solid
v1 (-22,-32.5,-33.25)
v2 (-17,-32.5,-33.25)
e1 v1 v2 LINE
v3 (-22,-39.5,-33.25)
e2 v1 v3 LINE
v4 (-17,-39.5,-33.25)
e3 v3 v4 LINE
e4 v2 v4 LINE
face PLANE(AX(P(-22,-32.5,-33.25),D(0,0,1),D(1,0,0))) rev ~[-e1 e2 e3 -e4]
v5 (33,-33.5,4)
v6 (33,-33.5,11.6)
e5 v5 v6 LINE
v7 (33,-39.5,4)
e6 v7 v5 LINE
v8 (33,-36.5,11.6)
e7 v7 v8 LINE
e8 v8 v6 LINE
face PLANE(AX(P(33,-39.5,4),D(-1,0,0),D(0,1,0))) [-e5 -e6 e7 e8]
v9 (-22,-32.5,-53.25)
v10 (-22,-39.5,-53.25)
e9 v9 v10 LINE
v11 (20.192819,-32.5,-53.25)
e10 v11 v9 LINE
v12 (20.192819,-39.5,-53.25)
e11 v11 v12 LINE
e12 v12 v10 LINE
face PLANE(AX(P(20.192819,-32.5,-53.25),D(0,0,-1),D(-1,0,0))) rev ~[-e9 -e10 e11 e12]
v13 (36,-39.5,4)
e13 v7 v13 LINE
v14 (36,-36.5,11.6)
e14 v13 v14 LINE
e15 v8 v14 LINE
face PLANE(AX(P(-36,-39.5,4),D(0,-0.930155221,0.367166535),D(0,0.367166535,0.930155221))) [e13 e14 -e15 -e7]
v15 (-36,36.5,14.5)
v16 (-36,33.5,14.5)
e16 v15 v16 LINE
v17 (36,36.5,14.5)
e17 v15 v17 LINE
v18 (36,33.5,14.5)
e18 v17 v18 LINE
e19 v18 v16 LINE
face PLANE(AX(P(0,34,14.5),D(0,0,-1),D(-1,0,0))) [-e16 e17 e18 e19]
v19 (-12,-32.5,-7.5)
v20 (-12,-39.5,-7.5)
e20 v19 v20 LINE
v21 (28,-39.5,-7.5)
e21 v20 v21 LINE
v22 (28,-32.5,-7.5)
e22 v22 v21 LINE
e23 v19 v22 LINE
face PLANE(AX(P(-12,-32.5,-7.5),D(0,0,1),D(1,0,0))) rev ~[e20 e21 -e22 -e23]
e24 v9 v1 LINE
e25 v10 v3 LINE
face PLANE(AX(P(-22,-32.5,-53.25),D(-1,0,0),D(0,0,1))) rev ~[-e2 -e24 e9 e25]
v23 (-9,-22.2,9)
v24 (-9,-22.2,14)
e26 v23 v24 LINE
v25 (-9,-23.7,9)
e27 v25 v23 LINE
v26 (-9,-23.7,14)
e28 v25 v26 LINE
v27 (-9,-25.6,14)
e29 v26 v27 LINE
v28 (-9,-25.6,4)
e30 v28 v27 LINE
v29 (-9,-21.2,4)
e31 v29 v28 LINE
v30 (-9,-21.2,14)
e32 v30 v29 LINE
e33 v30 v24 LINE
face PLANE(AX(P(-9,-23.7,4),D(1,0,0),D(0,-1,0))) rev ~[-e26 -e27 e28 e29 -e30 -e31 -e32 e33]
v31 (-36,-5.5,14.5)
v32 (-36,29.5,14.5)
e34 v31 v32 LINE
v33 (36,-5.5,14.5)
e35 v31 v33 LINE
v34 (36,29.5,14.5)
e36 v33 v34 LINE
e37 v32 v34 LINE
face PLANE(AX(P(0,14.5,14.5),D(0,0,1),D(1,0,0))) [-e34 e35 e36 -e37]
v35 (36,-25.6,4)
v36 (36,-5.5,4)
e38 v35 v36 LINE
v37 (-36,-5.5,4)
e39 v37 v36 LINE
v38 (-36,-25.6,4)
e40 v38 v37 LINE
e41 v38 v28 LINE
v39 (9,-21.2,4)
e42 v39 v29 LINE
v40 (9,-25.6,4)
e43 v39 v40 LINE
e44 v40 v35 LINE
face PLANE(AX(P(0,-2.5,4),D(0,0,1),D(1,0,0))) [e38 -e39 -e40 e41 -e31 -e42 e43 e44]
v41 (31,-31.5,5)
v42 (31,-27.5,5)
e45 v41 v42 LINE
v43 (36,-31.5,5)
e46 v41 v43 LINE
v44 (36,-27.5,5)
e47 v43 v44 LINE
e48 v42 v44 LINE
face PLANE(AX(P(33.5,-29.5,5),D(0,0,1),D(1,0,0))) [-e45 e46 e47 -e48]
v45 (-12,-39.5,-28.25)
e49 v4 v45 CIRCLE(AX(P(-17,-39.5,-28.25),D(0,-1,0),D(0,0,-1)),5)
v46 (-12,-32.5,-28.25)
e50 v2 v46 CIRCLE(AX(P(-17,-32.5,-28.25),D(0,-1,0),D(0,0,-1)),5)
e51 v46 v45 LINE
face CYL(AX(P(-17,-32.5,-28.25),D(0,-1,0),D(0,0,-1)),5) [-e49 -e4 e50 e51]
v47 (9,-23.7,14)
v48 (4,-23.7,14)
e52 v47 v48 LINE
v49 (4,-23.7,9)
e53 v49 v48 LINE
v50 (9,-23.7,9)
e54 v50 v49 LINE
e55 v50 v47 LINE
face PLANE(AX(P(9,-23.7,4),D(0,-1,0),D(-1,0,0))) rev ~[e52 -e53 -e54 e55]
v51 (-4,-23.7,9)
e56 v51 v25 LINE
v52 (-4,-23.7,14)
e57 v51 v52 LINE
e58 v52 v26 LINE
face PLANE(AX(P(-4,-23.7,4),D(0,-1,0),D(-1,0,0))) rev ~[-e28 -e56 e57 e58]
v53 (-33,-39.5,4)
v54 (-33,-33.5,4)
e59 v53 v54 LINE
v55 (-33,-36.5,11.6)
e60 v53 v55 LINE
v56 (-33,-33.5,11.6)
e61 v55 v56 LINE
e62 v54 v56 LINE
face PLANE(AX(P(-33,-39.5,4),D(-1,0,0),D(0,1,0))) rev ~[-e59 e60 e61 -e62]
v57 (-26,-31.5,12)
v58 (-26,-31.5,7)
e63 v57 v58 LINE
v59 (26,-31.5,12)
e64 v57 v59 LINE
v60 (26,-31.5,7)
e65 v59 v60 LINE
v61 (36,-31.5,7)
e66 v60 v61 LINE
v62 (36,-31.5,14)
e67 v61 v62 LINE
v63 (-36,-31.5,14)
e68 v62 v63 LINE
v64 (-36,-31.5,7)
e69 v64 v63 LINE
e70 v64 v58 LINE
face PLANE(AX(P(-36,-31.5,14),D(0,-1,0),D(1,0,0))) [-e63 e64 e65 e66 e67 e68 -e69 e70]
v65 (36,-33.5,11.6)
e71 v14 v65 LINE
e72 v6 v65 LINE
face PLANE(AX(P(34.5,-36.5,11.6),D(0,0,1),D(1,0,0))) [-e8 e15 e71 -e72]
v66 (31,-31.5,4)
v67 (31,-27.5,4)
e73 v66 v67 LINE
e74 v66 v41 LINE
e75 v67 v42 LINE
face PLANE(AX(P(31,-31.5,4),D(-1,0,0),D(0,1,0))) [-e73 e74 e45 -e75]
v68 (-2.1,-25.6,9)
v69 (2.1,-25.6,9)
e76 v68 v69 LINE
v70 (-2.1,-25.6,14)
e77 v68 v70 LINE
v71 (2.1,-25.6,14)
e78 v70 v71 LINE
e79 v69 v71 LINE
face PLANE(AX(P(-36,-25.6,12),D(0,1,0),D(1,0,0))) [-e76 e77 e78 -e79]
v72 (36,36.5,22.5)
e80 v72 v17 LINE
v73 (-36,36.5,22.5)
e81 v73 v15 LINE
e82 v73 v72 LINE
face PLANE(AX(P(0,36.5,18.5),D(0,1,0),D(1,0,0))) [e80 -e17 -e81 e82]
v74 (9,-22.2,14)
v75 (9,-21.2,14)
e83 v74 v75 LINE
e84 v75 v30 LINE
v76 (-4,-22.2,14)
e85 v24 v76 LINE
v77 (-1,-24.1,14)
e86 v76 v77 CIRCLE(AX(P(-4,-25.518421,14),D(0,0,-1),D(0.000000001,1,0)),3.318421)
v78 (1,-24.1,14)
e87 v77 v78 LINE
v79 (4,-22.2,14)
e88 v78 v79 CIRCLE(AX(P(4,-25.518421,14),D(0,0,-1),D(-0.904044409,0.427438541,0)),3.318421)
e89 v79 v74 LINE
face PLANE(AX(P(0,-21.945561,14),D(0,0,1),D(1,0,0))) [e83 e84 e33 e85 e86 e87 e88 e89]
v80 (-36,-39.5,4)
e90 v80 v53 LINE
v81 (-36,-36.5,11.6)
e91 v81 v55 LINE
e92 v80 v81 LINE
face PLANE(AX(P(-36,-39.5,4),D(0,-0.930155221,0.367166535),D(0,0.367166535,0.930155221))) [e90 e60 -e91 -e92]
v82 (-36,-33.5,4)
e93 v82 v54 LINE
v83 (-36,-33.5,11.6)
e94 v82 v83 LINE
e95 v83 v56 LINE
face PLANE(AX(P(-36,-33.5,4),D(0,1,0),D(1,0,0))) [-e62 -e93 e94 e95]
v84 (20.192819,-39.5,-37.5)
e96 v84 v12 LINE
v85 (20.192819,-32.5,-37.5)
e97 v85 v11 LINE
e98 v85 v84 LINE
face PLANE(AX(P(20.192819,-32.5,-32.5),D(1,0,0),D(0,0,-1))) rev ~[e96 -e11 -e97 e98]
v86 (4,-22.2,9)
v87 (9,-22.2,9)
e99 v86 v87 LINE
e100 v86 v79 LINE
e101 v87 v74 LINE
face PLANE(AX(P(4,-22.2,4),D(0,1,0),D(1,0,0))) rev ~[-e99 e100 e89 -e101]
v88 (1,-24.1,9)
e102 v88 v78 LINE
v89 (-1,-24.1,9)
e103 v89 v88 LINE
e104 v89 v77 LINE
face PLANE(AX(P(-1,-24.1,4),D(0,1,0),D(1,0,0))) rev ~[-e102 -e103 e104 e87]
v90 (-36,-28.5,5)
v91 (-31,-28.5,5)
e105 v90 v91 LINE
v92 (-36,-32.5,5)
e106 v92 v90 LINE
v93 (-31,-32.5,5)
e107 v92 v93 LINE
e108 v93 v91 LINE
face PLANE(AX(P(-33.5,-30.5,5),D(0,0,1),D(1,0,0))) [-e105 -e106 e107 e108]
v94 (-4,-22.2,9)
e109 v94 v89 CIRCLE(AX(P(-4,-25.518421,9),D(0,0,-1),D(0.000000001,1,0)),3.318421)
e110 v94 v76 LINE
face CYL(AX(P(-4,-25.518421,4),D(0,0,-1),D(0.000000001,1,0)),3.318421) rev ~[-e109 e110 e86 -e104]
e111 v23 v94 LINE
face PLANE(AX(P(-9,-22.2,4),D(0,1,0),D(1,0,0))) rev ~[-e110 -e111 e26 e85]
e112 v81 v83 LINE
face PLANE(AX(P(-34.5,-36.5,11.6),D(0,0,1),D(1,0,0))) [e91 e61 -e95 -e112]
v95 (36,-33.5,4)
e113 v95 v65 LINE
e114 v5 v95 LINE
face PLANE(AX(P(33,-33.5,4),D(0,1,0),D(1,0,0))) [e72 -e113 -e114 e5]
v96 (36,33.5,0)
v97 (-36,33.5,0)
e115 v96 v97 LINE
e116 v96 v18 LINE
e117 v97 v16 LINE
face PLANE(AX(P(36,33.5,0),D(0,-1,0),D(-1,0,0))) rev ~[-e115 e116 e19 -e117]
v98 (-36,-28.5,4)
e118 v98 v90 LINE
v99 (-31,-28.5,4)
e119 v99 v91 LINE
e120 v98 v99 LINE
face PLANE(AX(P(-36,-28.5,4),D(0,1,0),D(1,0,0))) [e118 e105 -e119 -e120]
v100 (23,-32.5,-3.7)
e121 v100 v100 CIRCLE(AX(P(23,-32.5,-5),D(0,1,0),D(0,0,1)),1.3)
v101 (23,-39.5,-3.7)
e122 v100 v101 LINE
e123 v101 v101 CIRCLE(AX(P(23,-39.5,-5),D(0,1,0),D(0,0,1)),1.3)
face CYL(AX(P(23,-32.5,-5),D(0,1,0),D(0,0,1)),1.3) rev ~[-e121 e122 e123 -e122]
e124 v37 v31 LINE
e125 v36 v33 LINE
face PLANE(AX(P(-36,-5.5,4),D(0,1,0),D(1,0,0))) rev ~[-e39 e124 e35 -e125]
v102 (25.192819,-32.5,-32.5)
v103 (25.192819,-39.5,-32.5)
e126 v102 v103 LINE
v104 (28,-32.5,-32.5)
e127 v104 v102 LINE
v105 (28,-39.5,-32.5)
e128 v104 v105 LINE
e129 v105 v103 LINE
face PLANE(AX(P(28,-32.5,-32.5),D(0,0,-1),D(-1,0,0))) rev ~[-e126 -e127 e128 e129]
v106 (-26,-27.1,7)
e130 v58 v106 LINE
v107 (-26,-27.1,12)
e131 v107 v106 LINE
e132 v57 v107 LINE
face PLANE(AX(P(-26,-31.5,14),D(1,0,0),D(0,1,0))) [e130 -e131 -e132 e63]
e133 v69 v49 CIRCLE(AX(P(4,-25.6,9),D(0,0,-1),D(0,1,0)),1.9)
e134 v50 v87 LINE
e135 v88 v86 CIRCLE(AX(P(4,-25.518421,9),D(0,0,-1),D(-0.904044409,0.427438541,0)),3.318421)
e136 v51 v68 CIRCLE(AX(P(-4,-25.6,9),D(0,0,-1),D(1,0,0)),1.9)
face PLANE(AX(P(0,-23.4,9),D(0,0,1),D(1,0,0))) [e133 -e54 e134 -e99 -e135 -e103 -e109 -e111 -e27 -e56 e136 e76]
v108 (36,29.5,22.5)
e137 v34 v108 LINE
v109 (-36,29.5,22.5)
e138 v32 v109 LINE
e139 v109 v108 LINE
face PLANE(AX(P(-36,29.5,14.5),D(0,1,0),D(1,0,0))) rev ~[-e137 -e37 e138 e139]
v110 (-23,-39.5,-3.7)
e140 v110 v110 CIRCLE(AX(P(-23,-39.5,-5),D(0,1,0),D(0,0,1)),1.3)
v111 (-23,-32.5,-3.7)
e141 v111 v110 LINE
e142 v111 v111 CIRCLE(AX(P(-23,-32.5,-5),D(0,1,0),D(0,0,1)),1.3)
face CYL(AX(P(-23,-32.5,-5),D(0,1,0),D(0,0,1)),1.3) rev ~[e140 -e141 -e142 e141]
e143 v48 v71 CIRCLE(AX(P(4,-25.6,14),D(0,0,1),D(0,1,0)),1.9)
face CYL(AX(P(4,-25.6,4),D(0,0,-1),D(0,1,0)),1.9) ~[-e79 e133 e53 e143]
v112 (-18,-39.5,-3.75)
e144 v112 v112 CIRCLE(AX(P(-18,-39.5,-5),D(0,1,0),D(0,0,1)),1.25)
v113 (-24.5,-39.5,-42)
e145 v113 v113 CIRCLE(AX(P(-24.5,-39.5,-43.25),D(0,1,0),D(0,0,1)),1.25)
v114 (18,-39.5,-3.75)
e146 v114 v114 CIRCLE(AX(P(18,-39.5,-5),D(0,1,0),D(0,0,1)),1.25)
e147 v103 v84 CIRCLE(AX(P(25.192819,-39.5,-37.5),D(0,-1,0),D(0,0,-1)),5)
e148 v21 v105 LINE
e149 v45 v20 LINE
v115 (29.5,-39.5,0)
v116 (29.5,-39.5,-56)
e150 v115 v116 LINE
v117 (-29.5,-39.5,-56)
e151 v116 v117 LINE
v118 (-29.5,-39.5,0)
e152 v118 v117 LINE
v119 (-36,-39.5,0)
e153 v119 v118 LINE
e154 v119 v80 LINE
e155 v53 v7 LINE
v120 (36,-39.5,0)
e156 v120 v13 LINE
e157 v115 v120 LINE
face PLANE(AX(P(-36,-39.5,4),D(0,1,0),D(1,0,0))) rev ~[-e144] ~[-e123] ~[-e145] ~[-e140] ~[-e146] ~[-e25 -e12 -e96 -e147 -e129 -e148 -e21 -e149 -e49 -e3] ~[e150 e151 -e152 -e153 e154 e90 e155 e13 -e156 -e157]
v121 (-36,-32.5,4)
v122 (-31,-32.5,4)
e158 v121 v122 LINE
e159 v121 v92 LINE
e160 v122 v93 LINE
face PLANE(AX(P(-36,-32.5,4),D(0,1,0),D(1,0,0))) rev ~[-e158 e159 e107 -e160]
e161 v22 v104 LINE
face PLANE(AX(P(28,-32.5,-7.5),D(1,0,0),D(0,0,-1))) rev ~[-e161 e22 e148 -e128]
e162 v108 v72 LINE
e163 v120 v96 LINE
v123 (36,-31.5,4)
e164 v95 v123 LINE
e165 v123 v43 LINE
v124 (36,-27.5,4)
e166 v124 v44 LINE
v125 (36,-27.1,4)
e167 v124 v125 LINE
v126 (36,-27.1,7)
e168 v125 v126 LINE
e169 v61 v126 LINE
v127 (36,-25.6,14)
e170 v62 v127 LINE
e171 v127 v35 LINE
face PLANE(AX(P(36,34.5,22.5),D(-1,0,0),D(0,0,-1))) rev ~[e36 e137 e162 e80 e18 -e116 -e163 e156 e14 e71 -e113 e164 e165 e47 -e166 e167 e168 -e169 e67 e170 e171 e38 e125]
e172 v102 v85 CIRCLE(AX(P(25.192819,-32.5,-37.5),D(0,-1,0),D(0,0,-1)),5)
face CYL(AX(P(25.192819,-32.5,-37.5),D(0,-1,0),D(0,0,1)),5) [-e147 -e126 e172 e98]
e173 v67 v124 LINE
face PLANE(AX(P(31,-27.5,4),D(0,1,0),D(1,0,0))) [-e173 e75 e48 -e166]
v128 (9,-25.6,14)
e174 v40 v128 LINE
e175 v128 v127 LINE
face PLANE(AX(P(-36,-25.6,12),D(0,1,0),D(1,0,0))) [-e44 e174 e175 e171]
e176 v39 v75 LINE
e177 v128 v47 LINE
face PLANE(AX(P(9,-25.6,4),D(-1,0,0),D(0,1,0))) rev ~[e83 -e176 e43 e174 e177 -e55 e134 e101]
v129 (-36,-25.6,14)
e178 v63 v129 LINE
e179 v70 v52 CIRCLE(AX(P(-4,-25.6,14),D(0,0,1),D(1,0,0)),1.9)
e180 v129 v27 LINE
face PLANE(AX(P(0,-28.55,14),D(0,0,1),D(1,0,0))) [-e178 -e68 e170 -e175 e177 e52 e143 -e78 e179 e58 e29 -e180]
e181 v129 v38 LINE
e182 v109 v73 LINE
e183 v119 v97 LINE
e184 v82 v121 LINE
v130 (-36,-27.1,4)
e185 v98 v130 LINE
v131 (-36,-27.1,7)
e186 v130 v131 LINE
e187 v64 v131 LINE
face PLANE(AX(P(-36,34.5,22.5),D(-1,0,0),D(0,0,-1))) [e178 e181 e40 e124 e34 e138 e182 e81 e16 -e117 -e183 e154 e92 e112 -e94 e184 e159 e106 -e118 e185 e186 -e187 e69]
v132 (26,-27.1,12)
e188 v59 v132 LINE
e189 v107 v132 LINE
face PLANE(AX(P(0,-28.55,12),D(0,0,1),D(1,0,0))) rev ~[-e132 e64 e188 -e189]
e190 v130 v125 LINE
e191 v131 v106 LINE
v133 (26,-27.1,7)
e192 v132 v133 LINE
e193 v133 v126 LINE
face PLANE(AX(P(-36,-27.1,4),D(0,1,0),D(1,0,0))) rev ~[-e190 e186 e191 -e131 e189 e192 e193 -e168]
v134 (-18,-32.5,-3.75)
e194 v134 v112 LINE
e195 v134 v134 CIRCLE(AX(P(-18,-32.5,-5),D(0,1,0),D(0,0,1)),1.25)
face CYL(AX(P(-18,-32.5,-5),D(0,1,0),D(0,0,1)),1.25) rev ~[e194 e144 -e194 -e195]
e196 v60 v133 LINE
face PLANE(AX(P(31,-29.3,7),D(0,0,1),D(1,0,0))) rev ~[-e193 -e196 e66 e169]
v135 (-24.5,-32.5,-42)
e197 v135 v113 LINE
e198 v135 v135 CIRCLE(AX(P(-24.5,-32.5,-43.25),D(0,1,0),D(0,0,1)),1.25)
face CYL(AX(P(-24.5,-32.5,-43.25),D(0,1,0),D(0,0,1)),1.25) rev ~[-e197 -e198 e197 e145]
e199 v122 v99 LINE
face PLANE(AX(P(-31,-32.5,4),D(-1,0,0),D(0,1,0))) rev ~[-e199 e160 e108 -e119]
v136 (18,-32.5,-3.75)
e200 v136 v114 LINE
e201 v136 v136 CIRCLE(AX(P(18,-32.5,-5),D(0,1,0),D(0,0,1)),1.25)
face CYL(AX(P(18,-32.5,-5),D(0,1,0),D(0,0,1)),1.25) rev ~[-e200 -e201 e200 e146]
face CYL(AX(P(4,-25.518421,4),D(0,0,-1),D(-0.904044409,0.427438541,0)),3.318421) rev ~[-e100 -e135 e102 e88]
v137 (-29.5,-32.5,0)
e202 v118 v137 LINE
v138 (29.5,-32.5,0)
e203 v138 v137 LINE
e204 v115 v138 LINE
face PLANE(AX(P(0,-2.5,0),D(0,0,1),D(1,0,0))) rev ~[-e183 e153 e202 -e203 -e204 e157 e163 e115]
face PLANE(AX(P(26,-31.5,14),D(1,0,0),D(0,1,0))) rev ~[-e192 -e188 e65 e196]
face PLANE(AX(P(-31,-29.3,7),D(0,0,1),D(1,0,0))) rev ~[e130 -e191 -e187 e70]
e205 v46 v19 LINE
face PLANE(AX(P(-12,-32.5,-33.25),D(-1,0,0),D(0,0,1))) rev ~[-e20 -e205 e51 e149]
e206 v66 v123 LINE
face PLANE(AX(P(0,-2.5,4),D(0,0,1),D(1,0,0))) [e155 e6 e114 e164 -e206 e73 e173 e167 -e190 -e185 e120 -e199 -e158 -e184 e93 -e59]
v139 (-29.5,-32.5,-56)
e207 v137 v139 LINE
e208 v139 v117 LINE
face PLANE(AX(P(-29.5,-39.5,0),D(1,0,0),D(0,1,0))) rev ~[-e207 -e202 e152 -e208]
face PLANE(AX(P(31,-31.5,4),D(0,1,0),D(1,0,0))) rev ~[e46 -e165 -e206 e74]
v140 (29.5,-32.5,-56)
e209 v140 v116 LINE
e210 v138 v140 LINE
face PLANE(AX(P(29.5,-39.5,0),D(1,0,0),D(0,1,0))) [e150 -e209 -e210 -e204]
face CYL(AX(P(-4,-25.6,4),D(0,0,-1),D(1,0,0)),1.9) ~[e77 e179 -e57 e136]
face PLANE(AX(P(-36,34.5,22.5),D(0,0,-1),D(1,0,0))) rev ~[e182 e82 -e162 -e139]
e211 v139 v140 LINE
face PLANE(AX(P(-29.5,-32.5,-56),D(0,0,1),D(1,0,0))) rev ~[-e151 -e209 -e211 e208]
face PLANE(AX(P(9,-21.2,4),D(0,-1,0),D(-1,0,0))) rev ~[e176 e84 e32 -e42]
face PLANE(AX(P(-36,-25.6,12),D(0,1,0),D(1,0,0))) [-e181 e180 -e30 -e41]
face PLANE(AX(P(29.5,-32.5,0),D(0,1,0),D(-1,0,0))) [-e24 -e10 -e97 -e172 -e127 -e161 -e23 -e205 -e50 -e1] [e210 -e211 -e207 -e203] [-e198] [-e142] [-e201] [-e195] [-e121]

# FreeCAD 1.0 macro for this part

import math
import FreeCAD as App
import Part
import Sketcher
from FreeCAD import Vector
Q = App.Units.Quantity


def edges_at(feature, points):
    """Names of the edges that pass closest to the given points."""
    edges = feature.Shape.Edges
    near = lambda p: min(range(len(edges)), key=lambda i: edges[i].distToShape(Part.Vertex(*p))[0])
    return sorted({f"Edge{near(p) + 1}" for p in points})


def add_polygon(sketch, points):
    """Adds a closed chain of lines whose ends are joined by coincident constraints."""
    first, n = sketch.GeometryCount, len(points)
    for a, b in zip(points, points[1:] + points[:1]):
        sketch.addGeometry(Part.LineSegment(App.Vector(*a, 0), App.Vector(*b, 0)), False)
    for i in range(n):
        sketch.addConstraint(Sketcher.Constraint("Coincident", first + i, 2, first + (i + 1) % n, 1))

doc = App.newDocument("Part")
body = doc.addObject("PartDesign::Body", "Body")

# Sketch on XY plane
sketch1 = body.newObject("Sketcher::SketchObject", "Sketch")
sketch1.AttachmentSupport = (doc.getObject("XY_Plane"), [""])
sketch1.MapMode = "FlatFace"
add_polygon(sketch1, [(-36, 34), (-36, -40), (36, -40), (36, 34)])  # lines 0-3
sketch1.addConstraint(Sketcher.Constraint("Vertical", 0))
sketch1.addConstraint(Sketcher.Constraint("Horizontal", 1))
sketch1.addConstraint(Sketcher.Constraint("Vertical", 2))
sketch1.addConstraint(Sketcher.Constraint("Horizontal", 3))
sketch1.addConstraint(Sketcher.Constraint("DistanceX", 1, 1, 1, 2, Q("72 mm")))
sketch1.addConstraint(Sketcher.Constraint("DistanceY", 0, 2, 0, 1, Q("74 mm")))
sketch1.addConstraint(Sketcher.Constraint("DistanceX", 0, 2, -1, 1, Q("36 mm")))
sketch1.addConstraint(Sketcher.Constraint("DistanceY", 0, 2, -1, 1, Q("39.5 mm")))
pad1 = body.newObject("PartDesign::Pad", "Pad")
pad1.Profile = sketch1
pad1.Length = 4

# Sketch on XY plane
sketch2 = body.newObject("Sketcher::SketchObject", "Sketch001")
sketch2.AttachmentSupport = (doc.getObject("XY_Plane"), [""])
sketch2.MapMode = "FlatFace"
sketch2.AttachmentOffset = App.Placement(Vector(0, 0, 4), App.Rotation())
add_polygon(sketch2, [(-36, -33.5), (-36, -39.5), (-33, -39.5), (-33, -33.5)])  # lines 0-3
add_polygon(sketch2, [(33, -33.5), (33, -39.5), (36, -39.5), (36, -33.5)])  # lines 4-7
sketch2.addConstraint(Sketcher.Constraint("Vertical", 0))
sketch2.addConstraint(Sketcher.Constraint("Horizontal", 1))
sketch2.addConstraint(Sketcher.Constraint("Vertical", 2))
sketch2.addConstraint(Sketcher.Constraint("Horizontal", 3))
sketch2.addConstraint(Sketcher.Constraint("Vertical", 4))
sketch2.addConstraint(Sketcher.Constraint("Horizontal", 5))
sketch2.addConstraint(Sketcher.Constraint("Vertical", 6))
sketch2.addConstraint(Sketcher.Constraint("Horizontal", 7))
sketch2.addConstraint(Sketcher.Constraint("Symmetric", 1, 2, 4, 2, -2))
sketch2.addConstraint(Sketcher.Constraint("Symmetric", 3, 2, 6, 2, -2))
sketch2.addConstraint(Sketcher.Constraint("DistanceX", 1, 1, 1, 2, Q("3 mm")))
sketch2.addConstraint(Sketcher.Constraint("DistanceY", 0, 2, 0, 1, Q("6 mm")))
sketch2.addConstraint(Sketcher.Constraint("DistanceX", 0, 2, -1, 1, Q("36 mm")))
sketch2.addConstraint(Sketcher.Constraint("DistanceY", 0, 2, -1, 1, Q("39.5 mm")))
pad2 = body.newObject("PartDesign::Pad", "Pad001")
pad2.Profile = sketch2
pad2.Length = 7.6

# Sketch on YZ plane
sketch3 = body.newObject("Sketcher::SketchObject", "Sketch002")
sketch3.AttachmentSupport = (doc.getObject("YZ_Plane"), [""])
sketch3.MapMode = "FlatFace"
sketch3.AttachmentOffset = App.Placement(Vector(0, 0, -36), App.Rotation())
add_polygon(sketch3, [(-36.5, 11.6), (-39.5, 4), (-39.5, 11.6)])  # lines 0-2
sketch3.addConstraint(Sketcher.Constraint("Vertical", 1))
sketch3.addConstraint(Sketcher.Constraint("Horizontal", 2))
sketch3.addConstraint(Sketcher.Constraint("DistanceX", 2, 1, 2, 2, Q("3 mm")))
sketch3.addConstraint(Sketcher.Constraint("DistanceY", 1, 1, 1, 2, Q("7.6 mm")))
sketch3.addConstraint(Sketcher.Constraint("DistanceY", -1, 1, 0, 2, Q("4 mm")))
sketch3.addConstraint(Sketcher.Constraint("DistanceX", 0, 2, -1, 1, Q("39.5 mm")))
pocket1 = body.newObject("PartDesign::Pocket", "Pocket")
pocket1.Profile = sketch3
pocket1.Type = "ThroughAll"
pocket1.Reversed = True

# Sketch on XY plane
sketch4 = body.newObject("Sketcher::SketchObject", "Sketch003")
sketch4.AttachmentSupport = (doc.getObject("XY_Plane"), [""])
sketch4.MapMode = "FlatFace"
sketch4.AttachmentOffset = App.Placement(Vector(0, 0, 4), App.Rotation())
add_polygon(sketch4, [(-36, -28.5), (-36, -32.5), (-31, -32.5), (-31, -28.5)])  # lines 0-3
add_polygon(sketch4, [(31, -27.5), (31, -31.5), (36, -31.5), (36, -27.5)])  # lines 4-7
sketch4.addConstraint(Sketcher.Constraint("Vertical", 0))
sketch4.addConstraint(Sketcher.Constraint("Horizontal", 1))
sketch4.addConstraint(Sketcher.Constraint("Vertical", 2))
sketch4.addConstraint(Sketcher.Constraint("Horizontal", 3))
sketch4.addConstraint(Sketcher.Constraint("Vertical", 4))
sketch4.addConstraint(Sketcher.Constraint("Horizontal", 5))
sketch4.addConstraint(Sketcher.Constraint("Vertical", 6))
sketch4.addConstraint(Sketcher.Constraint("Horizontal", 7))
sketch4.addConstraint(Sketcher.Constraint("Equal", 3, 5))
sketch4.addConstraint(Sketcher.Constraint("Equal", 2, 4))
sketch4.addConstraint(Sketcher.Constraint("DistanceX", 1, 1, 1, 2, Q("5 mm")))
sketch4.addConstraint(Sketcher.Constraint("DistanceY", 0, 2, 0, 1, Q("4 mm")))
sketch4.addConstraint(Sketcher.Constraint("DistanceX", 0, 2, -1, 1, Q("36 mm")))
sketch4.addConstraint(Sketcher.Constraint("DistanceX", -1, 1, 4, 2, Q("31 mm")))
sketch4.addConstraint(Sketcher.Constraint("DistanceY", 1, 2, 4, 2, Q("1 mm")))
sketch4.addConstraint(Sketcher.Constraint("DistanceY", 0, 2, -1, 1, Q("32.5 mm")))
pad3 = body.newObject("PartDesign::Pad", "Pad002")
pad3.Profile = sketch4
pad3.Length = 1

# Sketch on XY plane
sketch5 = body.newObject("Sketcher::SketchObject", "Sketch004")
sketch5.AttachmentSupport = (doc.getObject("XY_Plane"), [""])
sketch5.MapMode = "FlatFace"
sketch5.AttachmentOffset = App.Placement(Vector(0, 0, 4), App.Rotation())
add_polygon(sketch5, [(-36, -25.6), (-36, -27.1), (36, -27.1), (36, -25.6)])  # lines 0-3
sketch5.addConstraint(Sketcher.Constraint("Vertical", 0))
sketch5.addConstraint(Sketcher.Constraint("Horizontal", 1))
sketch5.addConstraint(Sketcher.Constraint("Vertical", 2))
sketch5.addConstraint(Sketcher.Constraint("Horizontal", 3))
sketch5.addConstraint(Sketcher.Constraint("DistanceX", 1, 1, 1, 2, Q("72 mm")))
sketch5.addConstraint(Sketcher.Constraint("DistanceY", 0, 2, 0, 1, Q("1.5 mm")))
sketch5.addConstraint(Sketcher.Constraint("DistanceX", 0, 2, -1, 1, Q("36 mm")))
sketch5.addConstraint(Sketcher.Constraint("DistanceY", 0, 2, -1, 1, Q("27.1 mm")))
pad4 = body.newObject("PartDesign::Pad", "Pad003")
pad4.Profile = sketch5
pad4.Length = 8

# Sketch on XY plane
sketch6 = body.newObject("Sketcher::SketchObject", "Sketch005")
sketch6.AttachmentSupport = (doc.getObject("XY_Plane"), [""])
sketch6.MapMode = "FlatFace"
sketch6.AttachmentOffset = App.Placement(Vector(0, 0, 12), App.Rotation())
add_polygon(sketch6, [(-36, -26), (-36, -32), (36, -32), (36, -26)])  # lines 0-3
sketch6.addConstraint(Sketcher.Constraint("Vertical", 0))
sketch6.addConstraint(Sketcher.Constraint("Horizontal", 1))
sketch6.addConstraint(Sketcher.Constraint("Vertical", 2))
sketch6.addConstraint(Sketcher.Constraint("Horizontal", 3))
sketch6.addConstraint(Sketcher.Constraint("DistanceX", 1, 1, 1, 2, Q("72 mm")))
sketch6.addConstraint(Sketcher.Constraint("DistanceY", 0, 2, 0, 1, Q("5.9 mm")))
sketch6.addConstraint(Sketcher.Constraint("DistanceX", 0, 2, -1, 1, Q("36 mm")))
sketch6.addConstraint(Sketcher.Constraint("DistanceY", 0, 2, -1, 1, Q("31.5 mm")))
pad5 = body.newObject("PartDesign::Pad", "Pad004")
pad5.Profile = sketch6
pad5.Length = 2

# Sketch on XY plane
sketch7 = body.newObject("Sketcher::SketchObject", "Sketch006")
sketch7.AttachmentSupport = (doc.getObject("XY_Plane"), [""])
sketch7.MapMode = "FlatFace"
sketch7.AttachmentOffset = App.Placement(Vector(0, 0, 14), App.Rotation())
add_polygon(sketch7, [(-36, -27.1), (-36, -31.5), (-26, -31.5), (-26, -27.1)])  # lines 0-3
add_polygon(sketch7, [(26, -27.1), (26, -31.5), (36, -31.5), (36, -27.1)])  # lines 4-7
sketch7.addConstraint(Sketcher.Constraint("Vertical", 0))
sketch7.addConstraint(Sketcher.Constraint("Horizontal", 1))
sketch7.addConstraint(Sketcher.Constraint("Vertical", 2))
sketch7.addConstraint(Sketcher.Constraint("Horizontal", 3))
sketch7.addConstraint(Sketcher.Constraint("Vertical", 4))
sketch7.addConstraint(Sketcher.Constraint("Horizontal", 5))
sketch7.addConstraint(Sketcher.Constraint("Vertical", 6))
sketch7.addConstraint(Sketcher.Constraint("Horizontal", 7))
sketch7.addConstraint(Sketcher.Constraint("Symmetric", 1, 2, 4, 2, -2))
sketch7.addConstraint(Sketcher.Constraint("Symmetric", 3, 2, 6, 2, -2))
sketch7.addConstraint(Sketcher.Constraint("DistanceX", 1, 1, 1, 2, Q("10 mm")))
sketch7.addConstraint(Sketcher.Constraint("DistanceY", 0, 2, 0, 1, Q("4.4 mm")))
sketch7.addConstraint(Sketcher.Constraint("DistanceX", 0, 2, -1, 1, Q("36 mm")))
sketch7.addConstraint(Sketcher.Constraint("DistanceY", 0, 2, -1, 1, Q("31.5 mm")))
pad6 = body.newObject("PartDesign::Pad", "Pad005")
pad6.Profile = sketch7
pad6.Length = 7
pad6.Reversed = True

# Sketch on XY plane
sketch8 = body.newObject("Sketcher::SketchObject", "Sketch007")
sketch8.AttachmentSupport = (doc.getObject("XY_Plane"), [""])
sketch8.MapMode = "FlatFace"
sketch8.AttachmentOffset = App.Placement(Vector(0, 0, 4), App.Rotation())
sketch8.addGeometry(Part.LineSegment(Vector(-9, -23.7, 0), Vector(-9, -25.6, 0)), False)
sketch8.addGeometry(Part.LineSegment(Vector(-9, -25.6, 0), Vector(-2.1, -25.6, 0)), False)
sketch8.addGeometry(Part.ArcOfCircle(Part.Circle(Vector(-4, -25.6, 0), Vector(0, 0, 1), 1.9), math.radians(0), math.radians(90)), False)
sketch8.addGeometry(Part.LineSegment(Vector(-4, -23.7, 0), Vector(-9, -23.7, 0)), False)
sketch8.addGeometry(Part.LineSegment(Vector(-9, -21.2, 0), Vector(-9, -22.2, 0)), False)
sketch8.addGeometry(Part.LineSegment(Vector(-9, -22.2, 0), Vector(-4, -22.2, 0)), False)
sketch8.addGeometry(Part.ArcOfCircle(Part.Circle(Vector(-4, -25.5, 0), Vector(0, 0, 1), 3.3), math.radians(25), math.radians(90)), False)
sketch8.addGeometry(Part.LineSegment(Vector(-1, -24.1, 0), Vector(1, -24.1, 0)), False)
sketch8.addGeometry(Part.ArcOfCircle(Part.Circle(Vector(4, -25.5, 0), Vector(0, 0, 1), 3.3), math.radians(90), math.radians(155)), False)
sketch8.addGeometry(Part.LineSegment(Vector(4, -22.2, 0), Vector(9, -22.2, 0)), False)
sketch8.addGeometry(Part.LineSegment(Vector(9, -22.2, 0), Vector(9, -21.2, 0)), False)
sketch8.addGeometry(Part.LineSegment(Vector(9, -21.2, 0), Vector(-9, -21.2, 0)), False)
sketch8.addGeometry(Part.ArcOfCircle(Part.Circle(Vector(4, -25.6, 0), Vector(0, 0, 1), 1.9), math.radians(90), math.radians(180)), False)
sketch8.addGeometry(Part.LineSegment(Vector(2.1, -25.6, 0), Vector(9, -25.6, 0)), False)
sketch8.addGeometry(Part.LineSegment(Vector(9, -25.6, 0), Vector(9, -23.7, 0)), False)
sketch8.addGeometry(Part.LineSegment(Vector(9, -23.7, 0), Vector(4, -23.7, 0)), False)
sketch8.addConstraint(Sketcher.Constraint("Coincident", 0, 2, 1, 1))
sketch8.addConstraint(Sketcher.Constraint("Coincident", 1, 2, 2, 1))
sketch8.addConstraint(Sketcher.Constraint("Tangent", 2, 2, 3, 1))
sketch8.addConstraint(Sketcher.Constraint("Coincident", 3, 2, 0, 1))
sketch8.addConstraint(Sketcher.Constraint("Coincident", 4, 2, 5, 1))
sketch8.addConstraint(Sketcher.Constraint("Tangent", 5, 2, 6, 2))
sketch8.addConstraint(Sketcher.Constraint("Coincident", 6, 1, 7, 1))
sketch8.addConstraint(Sketcher.Constraint("Coincident", 7, 2, 8, 2))
sketch8.addConstraint(Sketcher.Constraint("Tangent", 8, 1, 9, 1))
sketch8.addConstraint(Sketcher.Constraint("Coincident", 9, 2, 10, 1))
sketch8.addConstraint(Sketcher.Constraint("Coincident", 10, 2, 11, 1))
sketch8.addConstraint(Sketcher.Constraint("Coincident", 11, 2, 4, 1))
sketch8.addConstraint(Sketcher.Constraint("Coincident", 12, 2, 13, 1))
sketch8.addConstraint(Sketcher.Constraint("Coincident", 13, 2, 14, 1))
sketch8.addConstraint(Sketcher.Constraint("Coincident", 14, 2, 15, 1))
sketch8.addConstraint(Sketcher.Constraint("Tangent", 15, 2, 12, 1))
sketch8.addConstraint(Sketcher.Constraint("Vertical", 0))
sketch8.addConstraint(Sketcher.Constraint("Horizontal", 1))
sketch8.addConstraint(Sketcher.Constraint("Horizontal", 3))
sketch8.addConstraint(Sketcher.Constraint("Vertical", 4))
sketch8.addConstraint(Sketcher.Constraint("Horizontal", 5))
sketch8.addConstraint(Sketcher.Constraint("Horizontal", 7))
sketch8.addConstraint(Sketcher.Constraint("Horizontal", 9))
sketch8.addConstraint(Sketcher.Constraint("Vertical", 10))
sketch8.addConstraint(Sketcher.Constraint("Horizontal", 11))
sketch8.addConstraint(Sketcher.Constraint("Horizontal", 13))
sketch8.addConstraint(Sketcher.Constraint("Vertical", 14))
sketch8.addConstraint(Sketcher.Constraint("Horizontal", 15))
sketch8.addConstraint(Sketcher.Constraint("Equal", 6, 8))
sketch8.addConstraint(Sketcher.Constraint("Equal", 2, 12))
sketch8.addConstraint(Sketcher.Constraint("Symmetric", 6, 3, 8, 3, -2))
sketch8.addConstraint(Sketcher.Constraint("Symmetric", 2, 3, 12, 3, -2))
sketch8.addConstraint(Sketcher.Constraint("Symmetric", 0, 2, 13, 2, -2))
sketch8.addConstraint(Sketcher.Constraint("Horizontal", 12, 3, 0, 2))
sketch8.addConstraint(Sketcher.Constraint("Vertical", 2, 3, 6, 3))
sketch8.addConstraint(Sketcher.Constraint("Vertical", 3, 2, 4, 2))
sketch8.addConstraint(Sketcher.Constraint("Vertical", 10, 2, 13, 2))
sketch8.addConstraint(Sketcher.Constraint("Radius", 2, Q("1.9 mm")))
sketch8.addConstraint(Sketcher.Constraint("DistanceX", 3, 2, 3, 1, Q("5 mm")))
sketch8.addConstraint(Sketcher.Constraint("DistanceX", 7, 1, 7, 2, Q("2 mm")))
sketch8.addConstraint(Sketcher.Constraint("DistanceX", 11, 2, 11, 1, Q("18 mm")))
sketch8.addConstraint(Sketcher.Constraint("DistanceY", 4, 2, 4, 1, Q("1 mm")))
sketch8.addConstraint(Sketcher.Constraint("DistanceY", 2, 3, -1, 1, Q("25.6 mm")))
sketch8.addConstraint(Sketcher.Constraint("DistanceY", 4, 2, -1, 1, Q("22.2 mm")))
sketch8.addConstraint(Sketcher.Constraint("DistanceY", 6, 1, -1, 1, Q("24.1 mm")))
pad7 = body.newObject("PartDesign::Pad", "Pad006")
pad7.Profile = sketch8
pad7.Length = 10

# Sketch on XY plane
sketch9 = body.newObject("Sketcher::SketchObject", "Sketch008")
sketch9.AttachmentSupport = (doc.getObject("XY_Plane"), [""])
sketch9.MapMode = "FlatFace"
sketch9.AttachmentOffset = App.Placement(Vector(0, 0, 4), App.Rotation())
add_polygon(sketch9, [(-9, -21.2), (-9, -25.6), (9, -25.6), (9, -21.2)])  # lines 0-3
sketch9.addConstraint(Sketcher.Constraint("Vertical", 0))
sketch9.addConstraint(Sketcher.Constraint("Horizontal", 1))
sketch9.addConstraint(Sketcher.Constraint("Vertical", 2))
sketch9.addConstraint(Sketcher.Constraint("Horizontal", 3))
sketch9.addConstraint(Sketcher.Constraint("DistanceX", 1, 1, 1, 2, Q("18 mm")))
sketch9.addConstraint(Sketcher.Constraint("DistanceY", 0, 2, 0, 1, Q("4.4 mm")))
sketch9.addConstraint(Sketcher.Constraint("DistanceX", 0, 2, -1, 1, Q("9 mm")))
sketch9.addConstraint(Sketcher.Constraint("DistanceY", 0, 2, -1, 1, Q("25.6 mm")))
pad8 = body.newObject("PartDesign::Pad", "Pad007")
pad8.Profile = sketch9
pad8.Length = 5

# Sketch on XY plane
sketch10 = body.newObject("Sketcher::SketchObject", "Sketch009")
sketch10.AttachmentSupport = (doc.getObject("XY_Plane"), [""])
sketch10.MapMode = "FlatFace"
sketch10.AttachmentOffset = App.Placement(Vector(0, 0, 4), App.Rotation())
add_polygon(sketch10, [(-36, 34), (-36, -6), (36, -6), (36, 34)])  # lines 0-3
sketch10.addConstraint(Sketcher.Constraint("Vertical", 0))
sketch10.addConstraint(Sketcher.Constraint("Horizontal", 1))
sketch10.addConstraint(Sketcher.Constraint("Vertical", 2))
sketch10.addConstraint(Sketcher.Constraint("Horizontal", 3))
sketch10.addConstraint(Sketcher.Constraint("DistanceX", 1, 1, 1, 2, Q("72 mm")))
sketch10.addConstraint(Sketcher.Constraint("DistanceY", 0, 2, 0, 1, Q("40 mm")))
sketch10.addConstraint(Sketcher.Constraint("DistanceX", 0, 2, -1, 1, Q("36 mm")))
sketch10.addConstraint(Sketcher.Constraint("DistanceY", 0, 2, -1, 1, Q("5.5 mm")))
pad9 = body.newObject("PartDesign::Pad", "Pad008")
pad9.Profile = sketch10
pad9.Length = 10.5

# Sketch on XY plane
sketch11 = body.newObject("Sketcher::SketchObject", "Sketch010")
sketch11.AttachmentSupport = (doc.getObject("XY_Plane"), [""])
sketch11.MapMode = "FlatFace"
sketch11.AttachmentOffset = App.Placement(Vector(0, 0, 14.5), App.Rotation())
add_polygon(sketch11, [(-36, 34), (-36, 30), (36, 30), (36, 34)])  # lines 0-3
sketch11.addConstraint(Sketcher.Constraint("Vertical", 0))
sketch11.addConstraint(Sketcher.Constraint("Horizontal", 1))
sketch11.addConstraint(Sketcher.Constraint("Vertical", 2))
sketch11.addConstraint(Sketcher.Constraint("Horizontal", 3))
sketch11.addConstraint(Sketcher.Constraint("DistanceX", 1, 1, 1, 2, Q("72 mm")))
sketch11.addConstraint(Sketcher.Constraint("DistanceY", 0, 2, 0, 1, Q("5 mm")))
sketch11.addConstraint(Sketcher.Constraint("DistanceX", 0, 2, -1, 1, Q("36 mm")))
sketch11.addConstraint(Sketcher.Constraint("DistanceY", -1, 1, 0, 2, Q("29.5 mm")))
pad10 = body.newObject("PartDesign::Pad", "Pad009")
pad10.Profile = sketch11
pad10.Length = 8

# Sketch on XZ plane
sketch12 = body.newObject("Sketcher::SketchObject", "Sketch011")
sketch12.AttachmentSupport = (doc.getObject("XZ_Plane"), [""])
sketch12.MapMode = "FlatFace"
sketch12.AttachmentOffset = App.Placement(Vector(0, 0, -34.5), App.Rotation())
add_polygon(sketch12, [(-36, 14), (-36, 22), (36, 22), (36, 14)])  # lines 0-3
sketch12.addConstraint(Sketcher.Constraint("Vertical", 0))
sketch12.addConstraint(Sketcher.Constraint("Horizontal", 1))
sketch12.addConstraint(Sketcher.Constraint("Vertical", 2))
sketch12.addConstraint(Sketcher.Constraint("Horizontal", 3))
sketch12.addConstraint(Sketcher.Constraint("DistanceX", 1, 1, 1, 2, Q("72 mm")))
sketch12.addConstraint(Sketcher.Constraint("DistanceY", 0, 1, 0, 2, Q("8 mm")))
sketch12.addConstraint(Sketcher.Constraint("DistanceX", 0, 2, -1, 1, Q("36 mm")))
sketch12.addConstraint(Sketcher.Constraint("DistanceY", -1, 1, 0, 2, Q("22.5 mm")))
pad11 = body.newObject("PartDesign::Pad", "Pad010")
pad11.Profile = sketch12
pad11.Length = 2
pad11.Reversed = True

# Sketch on XY plane
sketch13 = body.newObject("Sketcher::SketchObject", "Sketch012")
sketch13.AttachmentSupport = (doc.getObject("XY_Plane"), [""])
sketch13.MapMode = "FlatFace"
add_polygon(sketch13, [(36, 34.5), (36, 33.5), (-36, 33.5), (-36, 34.5)])  # lines 0-3
sketch13.addConstraint(Sketcher.Constraint("Vertical", 0))
sketch13.addConstraint(Sketcher.Constraint("Horizontal", 1))
sketch13.addConstraint(Sketcher.Constraint("Vertical", 2))
sketch13.addConstraint(Sketcher.Constraint("Horizontal", 3))
sketch13.addConstraint(Sketcher.Constraint("DistanceX", 1, 2, 1, 1, Q("72 mm")))
sketch13.addConstraint(Sketcher.Constraint("DistanceY", 0, 2, 0, 1, Q("1 mm")))
sketch13.addConstraint(Sketcher.Constraint("DistanceX", -1, 1, 0, 2, Q("36 mm")))
sketch13.addConstraint(Sketcher.Constraint("DistanceY", -1, 1, 0, 2, Q("33.5 mm")))
pocket2 = body.newObject("PartDesign::Pocket", "Pocket001")
pocket2.Profile = sketch13
pocket2.Length = 14.5
pocket2.Reversed = True

# Sketch on XY plane
sketch14 = body.newObject("Sketcher::SketchObject", "Sketch013")
sketch14.AttachmentSupport = (doc.getObject("XY_Plane"), [""])
sketch14.MapMode = "FlatFace"
add_polygon(sketch14, [(30, -32), (30, -40), (-30, -40), (-30, -32)])  # lines 0-3
sketch14.addConstraint(Sketcher.Constraint("Vertical", 0))
sketch14.addConstraint(Sketcher.Constraint("Horizontal", 1))
sketch14.addConstraint(Sketcher.Constraint("Vertical", 2))
sketch14.addConstraint(Sketcher.Constraint("Horizontal", 3))
sketch14.addConstraint(Sketcher.Constraint("DistanceX", 1, 2, 1, 1, Q("59 mm")))
sketch14.addConstraint(Sketcher.Constraint("DistanceY", 0, 2, 0, 1, Q("7 mm")))
sketch14.addConstraint(Sketcher.Constraint("DistanceX", -1, 1, 0, 2, Q("29.5 mm")))
sketch14.addConstraint(Sketcher.Constraint("DistanceY", 0, 2, -1, 1, Q("39.5 mm")))
pad12 = body.newObject("PartDesign::Pad", "Pad011")
pad12.Profile = sketch14
pad12.Length = 65
pad12.Reversed = True

# Sketch on XZ plane
sketch15 = body.newObject("Sketcher::SketchObject", "Sketch014")
sketch15.AttachmentSupport = (doc.getObject("XZ_Plane"), [""])
sketch15.MapMode = "FlatFace"
sketch15.AttachmentOffset = App.Placement(Vector(0, 0, 32.5), App.Rotation())
sketch15.addGeometry(Part.Circle(Vector(-18, -5, 0), Vector(0, 0, 1), 1.2), False)  # 0
sketch15.addGeometry(Part.Circle(Vector(18, -5, 0), Vector(0, 0, 1), 1.2), False)  # 1
add_polygon(sketch15, [(20.2, -53.2), (-22, -53.2), (-22, -33.2), (-12, -33.2), (-12, -7.5), (28, -7.5), (28, -32.5), (20.2, -32.5)])  # lines 2-9
sketch15.addGeometry(Part.Circle(Vector(23, -5, 0), Vector(0, 0, 1), 1.3), False)  # 10
sketch15.addGeometry(Part.Circle(Vector(-23, -5, 0), Vector(0, 0, 1), 1.3), False)  # 11
sketch15.addGeometry(Part.Circle(Vector(-24.5, -43.2, 0), Vector(0, 0, 1), 1.2), False)  # 12
sketch15.addConstraint(Sketcher.Constraint("Horizontal", 2))
sketch15.addConstraint(Sketcher.Constraint("Vertical", 3))
sketch15.addConstraint(Sketcher.Constraint("Horizontal", 4))
sketch15.addConstraint(Sketcher.Constraint("Vertical", 5))
sketch15.addConstraint(Sketcher.Constraint("Horizontal", 6))
sketch15.addConstraint(Sketcher.Constraint("Vertical", 7))
sketch15.addConstraint(Sketcher.Constraint("Horizontal", 8))
sketch15.addConstraint(Sketcher.Constraint("Vertical", 9))
sketch15.addConstraint(Sketcher.Constraint("Equal", 0, 1))
sketch15.addConstraint(Sketcher.Constraint("Equal", 10, 11))
sketch15.addConstraint(Sketcher.Constraint("Equal", 1, 12))
sketch15.addConstraint(Sketcher.Constraint("Symmetric", 0, 3, 1, 3, -2))
sketch15.addConstraint(Sketcher.Constraint("Symmetric", 10, 3, 11, 3, -2))
sketch15.addConstraint(Sketcher.Constraint("Horizontal", 1, 3, 10, 3))
sketch15.addConstraint(Sketcher.Constraint("Diameter", 0, Q("2.5 mm")))
sketch15.addConstraint(Sketcher.Constraint("Diameter", 10, Q("2.6 mm")))
sketch15.addConstraint(Sketcher.Constraint("DistanceX", 4, 1, 4, 2, Q("10 mm")))
sketch15.addConstraint(Sketcher.Constraint("DistanceX", 6, 1, 6, 2, Q("40 mm")))
sketch15.addConstraint(Sketcher.Constraint("DistanceY", 3, 1, 3, 2, Q("20 mm")))
sketch15.addConstraint(Sketcher.Constraint("DistanceY", 7, 2, 7, 1, Q("25 mm")))
sketch15.addConstraint(Sketcher.Constraint("DistanceX", 0, 3, -1, 1, Q("18 mm")))
sketch15.addConstraint(Sketcher.Constraint("DistanceY", 0, 3, -1, 1, Q("5 mm")))
sketch15.addConstraint(Sketcher.Constraint("DistanceX", -1, 1, 10, 3, Q("23 mm")))
sketch15.addConstraint(Sketcher.Constraint("DistanceX", 2, 2, -1, 1, Q("22 mm")))
sketch15.addConstraint(Sketcher.Constraint("DistanceY", 2, 2, 12, 3, Q("10 mm")))
sketch15.addConstraint(Sketcher.Constraint("DistanceY", 5, 1, 5, 2, Q("25.75 mm")))
sketch15.addConstraint(Sketcher.Constraint("DistanceX", 12, 3, -1, 1, Q("24.5 mm")))
sketch15.addConstraint(Sketcher.Constraint("DistanceY", 5, 2, -1, 1, Q("7.5 mm")))
sketch15.addConstraint(Sketcher.Constraint("DistanceX", 2, 2, 2, 1, Q("42.192819 mm")))
pocket3 = body.newObject("PartDesign::Pocket", "Pocket002")
pocket3.Profile = sketch15
pocket3.Length = 10
pocket3.Reversed = True
doc.recompute()

fillet = body.newObject("PartDesign::Fillet", "Fillet")
fillet.Base = (pocket3, edges_at(pocket3, [(20.193, -36, -32.5), (-12, -36, -33.25)]))
fillet.Radius = 5

# Sketch on XZ plane
sketch16 = body.newObject("Sketcher::SketchObject", "Sketch015")
sketch16.AttachmentSupport = (doc.getObject("XZ_Plane"), [""])
sketch16.MapMode = "FlatFace"
sketch16.AttachmentOffset = App.Placement(Vector(0, 0, 32.5), App.Rotation())
add_polygon(sketch16, [(-30, -65), (-30, -56), (30, -56), (30, -65)])  # lines 0-3
sketch16.addConstraint(Sketcher.Constraint("Vertical", 0))
sketch16.addConstraint(Sketcher.Constraint("Horizontal", 1))
sketch16.addConstraint(Sketcher.Constraint("Vertical", 2))
sketch16.addConstraint(Sketcher.Constraint("Horizontal", 3))
sketch16.addConstraint(Sketcher.Constraint("DistanceX", 1, 1, 1, 2, Q("59 mm")))
sketch16.addConstraint(Sketcher.Constraint("DistanceY", 0, 1, 0, 2, Q("9 mm")))
sketch16.addConstraint(Sketcher.Constraint("DistanceY", 0, 2, -1, 1, Q("56 mm")))
sketch16.addConstraint(Sketcher.Constraint("DistanceX", 0, 2, -1, 1, Q("29.5 mm")))
pocket4 = body.newObject("PartDesign::Pocket", "Pocket003")
pocket4.Profile = sketch16
pocket4.Type = "UpToFirst"
pocket4.Reversed = True

doc.recompute()
